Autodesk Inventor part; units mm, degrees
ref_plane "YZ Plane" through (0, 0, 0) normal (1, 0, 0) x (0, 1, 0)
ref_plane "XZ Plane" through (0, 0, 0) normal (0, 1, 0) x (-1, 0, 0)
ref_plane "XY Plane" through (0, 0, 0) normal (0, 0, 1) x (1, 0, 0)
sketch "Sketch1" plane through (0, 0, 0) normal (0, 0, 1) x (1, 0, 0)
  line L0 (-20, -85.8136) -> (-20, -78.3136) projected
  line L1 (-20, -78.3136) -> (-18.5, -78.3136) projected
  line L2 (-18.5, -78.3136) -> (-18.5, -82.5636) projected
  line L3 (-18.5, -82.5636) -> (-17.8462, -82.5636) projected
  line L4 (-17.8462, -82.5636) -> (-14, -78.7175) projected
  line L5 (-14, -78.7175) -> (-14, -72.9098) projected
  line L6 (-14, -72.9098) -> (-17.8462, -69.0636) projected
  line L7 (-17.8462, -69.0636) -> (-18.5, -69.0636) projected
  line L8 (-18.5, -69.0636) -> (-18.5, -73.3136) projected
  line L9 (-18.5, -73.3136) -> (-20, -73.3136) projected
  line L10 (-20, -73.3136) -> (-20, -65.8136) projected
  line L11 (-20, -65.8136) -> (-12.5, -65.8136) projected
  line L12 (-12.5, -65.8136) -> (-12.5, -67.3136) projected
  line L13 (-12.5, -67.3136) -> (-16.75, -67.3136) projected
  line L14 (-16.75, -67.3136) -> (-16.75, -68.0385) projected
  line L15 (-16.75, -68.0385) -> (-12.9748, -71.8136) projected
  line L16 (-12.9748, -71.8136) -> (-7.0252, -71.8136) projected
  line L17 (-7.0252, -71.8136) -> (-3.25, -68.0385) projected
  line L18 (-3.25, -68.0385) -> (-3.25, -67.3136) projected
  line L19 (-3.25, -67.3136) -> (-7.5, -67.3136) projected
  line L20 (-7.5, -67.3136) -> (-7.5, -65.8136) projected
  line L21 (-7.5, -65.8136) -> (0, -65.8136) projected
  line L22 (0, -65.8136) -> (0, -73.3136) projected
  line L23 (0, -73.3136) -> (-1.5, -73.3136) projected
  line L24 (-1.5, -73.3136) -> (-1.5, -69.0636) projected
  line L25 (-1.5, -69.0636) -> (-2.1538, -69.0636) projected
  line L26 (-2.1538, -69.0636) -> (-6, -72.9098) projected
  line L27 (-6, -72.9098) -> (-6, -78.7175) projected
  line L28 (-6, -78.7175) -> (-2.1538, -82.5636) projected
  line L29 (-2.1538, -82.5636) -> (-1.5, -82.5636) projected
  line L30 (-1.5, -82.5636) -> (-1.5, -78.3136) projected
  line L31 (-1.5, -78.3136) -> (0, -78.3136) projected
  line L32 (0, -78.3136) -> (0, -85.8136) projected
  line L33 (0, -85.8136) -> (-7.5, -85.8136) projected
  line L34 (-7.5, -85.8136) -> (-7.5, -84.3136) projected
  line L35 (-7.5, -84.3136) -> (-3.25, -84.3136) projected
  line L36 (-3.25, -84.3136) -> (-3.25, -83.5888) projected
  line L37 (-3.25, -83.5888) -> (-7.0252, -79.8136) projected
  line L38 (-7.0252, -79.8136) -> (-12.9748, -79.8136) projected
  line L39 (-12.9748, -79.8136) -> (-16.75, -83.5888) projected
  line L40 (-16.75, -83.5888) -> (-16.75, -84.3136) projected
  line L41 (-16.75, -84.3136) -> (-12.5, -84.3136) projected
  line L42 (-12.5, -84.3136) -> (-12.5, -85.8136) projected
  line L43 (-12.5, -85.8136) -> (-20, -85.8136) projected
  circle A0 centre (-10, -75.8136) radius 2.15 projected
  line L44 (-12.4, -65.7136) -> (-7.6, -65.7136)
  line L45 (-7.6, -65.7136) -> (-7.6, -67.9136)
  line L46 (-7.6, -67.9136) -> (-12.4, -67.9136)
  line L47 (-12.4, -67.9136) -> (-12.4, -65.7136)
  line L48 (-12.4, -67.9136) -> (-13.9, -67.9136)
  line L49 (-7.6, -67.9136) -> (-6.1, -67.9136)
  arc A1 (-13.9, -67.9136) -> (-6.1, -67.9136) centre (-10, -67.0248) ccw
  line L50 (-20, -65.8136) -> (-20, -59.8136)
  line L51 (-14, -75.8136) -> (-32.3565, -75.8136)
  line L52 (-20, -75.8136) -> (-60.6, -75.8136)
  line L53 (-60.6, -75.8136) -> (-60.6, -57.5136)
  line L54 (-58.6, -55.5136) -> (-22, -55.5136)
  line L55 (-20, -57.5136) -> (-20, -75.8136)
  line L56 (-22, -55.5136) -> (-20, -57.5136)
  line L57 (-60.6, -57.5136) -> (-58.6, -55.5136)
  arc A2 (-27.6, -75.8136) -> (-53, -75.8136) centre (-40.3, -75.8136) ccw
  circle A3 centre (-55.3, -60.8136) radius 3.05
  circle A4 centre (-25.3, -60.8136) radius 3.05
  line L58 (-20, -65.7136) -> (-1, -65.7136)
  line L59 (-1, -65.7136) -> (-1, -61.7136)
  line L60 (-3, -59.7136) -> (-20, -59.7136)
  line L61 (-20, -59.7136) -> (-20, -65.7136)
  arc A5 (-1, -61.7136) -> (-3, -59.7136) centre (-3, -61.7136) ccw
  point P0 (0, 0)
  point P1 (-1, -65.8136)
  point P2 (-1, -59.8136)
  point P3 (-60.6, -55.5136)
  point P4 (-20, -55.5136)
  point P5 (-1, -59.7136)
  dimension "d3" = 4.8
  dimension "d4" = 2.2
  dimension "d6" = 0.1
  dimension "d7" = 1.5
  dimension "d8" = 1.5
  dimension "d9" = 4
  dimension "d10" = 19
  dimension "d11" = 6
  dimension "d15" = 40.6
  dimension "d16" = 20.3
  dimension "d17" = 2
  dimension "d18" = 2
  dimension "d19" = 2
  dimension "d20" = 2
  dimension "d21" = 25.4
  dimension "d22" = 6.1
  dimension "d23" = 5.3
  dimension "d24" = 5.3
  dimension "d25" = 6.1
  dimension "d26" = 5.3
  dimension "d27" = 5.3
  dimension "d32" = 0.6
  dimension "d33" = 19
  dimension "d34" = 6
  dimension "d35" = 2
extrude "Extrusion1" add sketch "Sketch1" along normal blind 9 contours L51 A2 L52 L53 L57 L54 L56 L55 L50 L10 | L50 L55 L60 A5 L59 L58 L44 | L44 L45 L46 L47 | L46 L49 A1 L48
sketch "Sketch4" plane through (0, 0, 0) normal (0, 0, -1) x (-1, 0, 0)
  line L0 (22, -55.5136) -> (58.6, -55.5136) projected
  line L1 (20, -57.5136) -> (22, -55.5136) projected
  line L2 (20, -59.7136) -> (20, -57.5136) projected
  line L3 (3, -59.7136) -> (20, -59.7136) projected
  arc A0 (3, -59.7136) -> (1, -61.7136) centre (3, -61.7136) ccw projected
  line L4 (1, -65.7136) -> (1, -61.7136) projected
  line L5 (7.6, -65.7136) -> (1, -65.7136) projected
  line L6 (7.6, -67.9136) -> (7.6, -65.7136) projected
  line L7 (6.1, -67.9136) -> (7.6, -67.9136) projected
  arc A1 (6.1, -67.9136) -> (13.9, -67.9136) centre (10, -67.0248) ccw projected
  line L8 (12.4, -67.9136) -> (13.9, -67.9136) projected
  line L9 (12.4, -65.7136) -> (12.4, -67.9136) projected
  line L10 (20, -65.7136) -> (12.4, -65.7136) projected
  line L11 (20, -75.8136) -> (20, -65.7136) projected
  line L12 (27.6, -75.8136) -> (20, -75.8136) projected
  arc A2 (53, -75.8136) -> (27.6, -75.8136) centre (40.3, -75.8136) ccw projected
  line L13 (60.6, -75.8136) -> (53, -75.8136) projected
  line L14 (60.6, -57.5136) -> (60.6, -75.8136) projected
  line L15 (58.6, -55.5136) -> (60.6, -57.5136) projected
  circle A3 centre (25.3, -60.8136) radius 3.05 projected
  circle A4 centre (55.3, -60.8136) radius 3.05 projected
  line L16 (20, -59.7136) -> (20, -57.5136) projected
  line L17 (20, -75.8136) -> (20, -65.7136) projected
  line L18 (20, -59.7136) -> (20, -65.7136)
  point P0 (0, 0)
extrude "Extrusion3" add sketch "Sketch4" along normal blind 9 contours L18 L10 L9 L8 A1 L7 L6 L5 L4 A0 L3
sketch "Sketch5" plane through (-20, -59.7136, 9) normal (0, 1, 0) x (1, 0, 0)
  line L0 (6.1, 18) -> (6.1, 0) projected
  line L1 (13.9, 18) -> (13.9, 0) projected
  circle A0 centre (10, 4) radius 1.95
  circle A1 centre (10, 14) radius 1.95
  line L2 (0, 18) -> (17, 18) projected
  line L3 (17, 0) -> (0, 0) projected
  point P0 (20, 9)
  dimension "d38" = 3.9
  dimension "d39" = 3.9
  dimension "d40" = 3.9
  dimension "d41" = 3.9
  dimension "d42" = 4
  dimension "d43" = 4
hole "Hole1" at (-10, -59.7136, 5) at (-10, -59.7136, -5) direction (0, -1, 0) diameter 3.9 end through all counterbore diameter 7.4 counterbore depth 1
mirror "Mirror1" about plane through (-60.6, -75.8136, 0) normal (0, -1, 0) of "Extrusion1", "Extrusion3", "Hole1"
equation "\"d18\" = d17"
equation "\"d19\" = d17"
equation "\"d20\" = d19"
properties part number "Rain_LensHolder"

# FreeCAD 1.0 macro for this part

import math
import FreeCAD as App
import Part
import Sketcher

V = App.Vector
Q = App.Units.Quantity

doc = App.newDocument("Part")
body = doc.addObject("PartDesign::Body", "Body")

# Sketch on XY plane
sketch1 = body.newObject("Sketcher::SketchObject", "Sketch")
sketch1.AttachmentSupport = (doc.getObject("XY_Plane"), [""])
sketch1.MapMode = "FlatFace"
sketch1.addGeometry([
    Part.LineSegment(V(-27.6, -75.8, 0), V(-20, -75.8, 0)),  # 0
    Part.LineSegment(V(-20, -75.8, 0), V(-20, -65.7, 0)),  # 1
    Part.LineSegment(V(-20, -65.7, 0), V(-12.4, -65.7, 0)),  # 2
    Part.LineSegment(V(-12.4, -65.7, 0), V(-12.4, -67.9, 0)),  # 3
    Part.LineSegment(V(-12.4, -67.9, 0), V(-13.9, -67.9, 0)),  # 4
    Part.ArcOfCircle(Part.Circle(V(-10, -67, 0), V(0, 0, 1), 4), math.radians(-167), math.radians(-13)),  # 5
    Part.LineSegment(V(-6.1, -67.9, 0), V(-7.6, -67.9, 0)),  # 6
    Part.LineSegment(V(-7.6, -67.9, 0), V(-7.6, -65.7, 0)),  # 7
    Part.LineSegment(V(-7.6, -65.7, 0), V(-1, -65.7, 0)),  # 8
    Part.LineSegment(V(-1, -65.7, 0), V(-1, -61.7, 0)),  # 9
    Part.ArcOfCircle(Part.Circle(V(-3, -61.7, 0), V(0, 0, 1), 2), math.radians(0), math.radians(90)),  # 10
    Part.LineSegment(V(-3, -59.7, 0), V(-20, -59.7, 0)),  # 11
    Part.LineSegment(V(-20, -59.7, 0), V(-20, -57.5, 0)),  # 12
    Part.LineSegment(V(-20, -57.5, 0), V(-22, -55.5, 0)),  # 13
    Part.LineSegment(V(-22, -55.5, 0), V(-58.6, -55.5, 0)),  # 14
    Part.LineSegment(V(-58.6, -55.5, 0), V(-60.6, -57.5, 0)),  # 15
    Part.LineSegment(V(-60.6, -57.5, 0), V(-60.6, -75.8, 0)),  # 16
    Part.LineSegment(V(-60.6, -75.8, 0), V(-53, -75.8, 0)),  # 17
    Part.ArcOfCircle(Part.Circle(V(-40.3, -75.8, 0), V(0, 0, 1), 12.7), math.radians(0), math.radians(180)),  # 18
    Part.Circle(V(-55.3, -60.8, 0), V(0, 0, 1), 3),  # 19
    Part.Circle(V(-25.3, -60.8, 0), V(0, 0, 1), 3),  # 20
], False)
sketch1.addConstraint([
    Sketcher.Constraint("Coincident", 0, 2, 1, 1),
    Sketcher.Constraint("Coincident", 1, 2, 2, 1),
    Sketcher.Constraint("Coincident", 2, 2, 3, 1),
    Sketcher.Constraint("Coincident", 3, 2, 4, 1),
    Sketcher.Constraint("Coincident", 4, 2, 5, 1),
    Sketcher.Constraint("Coincident", 5, 2, 6, 1),
    Sketcher.Constraint("Coincident", 6, 2, 7, 1),
    Sketcher.Constraint("Coincident", 7, 2, 8, 1),
    Sketcher.Constraint("Coincident", 8, 2, 9, 1),
    Sketcher.Constraint("Tangent", 9, 2, 10, 1),
    Sketcher.Constraint("Tangent", 10, 2, 11, 1),
    Sketcher.Constraint("Coincident", 11, 2, 12, 1),
    Sketcher.Constraint("Coincident", 12, 2, 13, 1),
    Sketcher.Constraint("Coincident", 13, 2, 14, 1),
    Sketcher.Constraint("Coincident", 14, 2, 15, 1),
    Sketcher.Constraint("Coincident", 15, 2, 16, 1),
    Sketcher.Constraint("Coincident", 16, 2, 17, 1),
    Sketcher.Constraint("Coincident", 17, 2, 18, 2),
    Sketcher.Constraint("Coincident", 18, 1, 0, 1),
    Sketcher.Constraint("Horizontal", 0),
    Sketcher.Constraint("Vertical", 1),
    Sketcher.Constraint("Horizontal", 2),
    Sketcher.Constraint("Vertical", 3),
    Sketcher.Constraint("Horizontal", 4),
    Sketcher.Constraint("Horizontal", 6),
    Sketcher.Constraint("Vertical", 7),
    Sketcher.Constraint("Horizontal", 8),
    Sketcher.Constraint("Vertical", 9),
    Sketcher.Constraint("Horizontal", 11),
    Sketcher.Constraint("Vertical", 12),
    Sketcher.Constraint("Horizontal", 14),
    Sketcher.Constraint("Vertical", 16),
    Sketcher.Constraint("Horizontal", 17),
    Sketcher.Constraint("Equal", 19, 20),
    Sketcher.Constraint("Perpendicular", 13, 15),
    Sketcher.Constraint("Horizontal", 19, 3, 20, 3),
    Sketcher.Constraint("Horizontal", 18, 3, 0, 2),
    Sketcher.Constraint("Horizontal", 4, 2, 5, 2),
    Sketcher.Constraint("Horizontal", 2, 2, 7, 2),
    Sketcher.Constraint("Horizontal", 12, 2, 15, 2),
    Sketcher.Constraint("Horizontal", 0, 2, 16, 2),
    Sketcher.Constraint("Vertical", 1, 2, 11, 2),
    Sketcher.Constraint("Equal", 0, 2),
    Sketcher.Constraint("Equal", 4, 6),
    Sketcher.Constraint("Equal", 2, 17),
    Sketcher.Constraint("Equal", 7, 12),
    Sketcher.Constraint("Equal", 13, 15),
    Sketcher.Constraint("Radius", 5, Q("4 mm")),
    Sketcher.Constraint("Radius", 10, Q("2 mm")),
    Sketcher.Constraint("Diameter", 19, Q("6.1 mm")),
    Sketcher.Constraint("Radius", 18, Q("12.7 mm")),
    Sketcher.Constraint("DistanceY", 9, 1, 9, 2, Q("4 mm")),
    Sketcher.Constraint("DistanceX", 4, 2, 4, 1, Q("1.5 mm")),
    Sketcher.Constraint("DistanceY", 3, 2, 3, 1, Q("2.2 mm")),
    Sketcher.Constraint("DistanceX", 13, 2, 12, 2, Q("2 mm")),
    Sketcher.Constraint("DistanceX", 5, 2, -1, 1, Q("6.1 mm")),
    Sketcher.Constraint("DistanceX", 20, 3, 0, 2, Q("5.3 mm")),
    Sketcher.Constraint("DistanceX", 18, 3, 0, 2, Q("20.3 mm")),
    Sketcher.Constraint("DistanceX", 3, 2, 6, 2, Q("4.8 mm")),
    Sketcher.Constraint("DistanceY", 20, 3, 13, 2, Q("5.3 mm")),
    Sketcher.Constraint("DistanceY", 18, 3, 14, 2, Q("20.3 mm")),
    Sketcher.Constraint("DistanceX", 15, 2, 19, 3, Q("5.3 mm")),
    Sketcher.Constraint("DistanceX", 11, 2, 11, 1, Q("17 mm")),
    Sketcher.Constraint("DistanceY", 5, 3, -1, 1, Q("67.0248 mm")),
])
pad1 = body.newObject("PartDesign::Pad", "Pad")
pad1.Profile = sketch1
pad1.Length = 9

# Sketch on XY plane
sketch2 = body.newObject("Sketcher::SketchObject", "Sketch001")
sketch2.AttachmentSupport = (doc.getObject("XY_Plane"), [""])
sketch2.MapMode = "FlatFace"
sketch2.addGeometry([
    Part.LineSegment(V(-20, -65.7, 0), V(-20, -59.7, 0)),  # 0
    Part.LineSegment(V(-20, -59.7, 0), V(-3, -59.7, 0)),  # 1
    Part.ArcOfCircle(Part.Circle(V(-3, -61.7, 0), V(0, 0, 1), 2), math.radians(0), math.radians(90)),  # 2
    Part.LineSegment(V(-1, -61.7, 0), V(-1, -65.7, 0)),  # 3
    Part.LineSegment(V(-1, -65.7, 0), V(-7.6, -65.7, 0)),  # 4
    Part.LineSegment(V(-7.6, -65.7, 0), V(-7.6, -67.9, 0)),  # 5
    Part.LineSegment(V(-7.6, -67.9, 0), V(-6.1, -67.9, 0)),  # 6
    Part.ArcOfCircle(Part.Circle(V(-10, -67, 0), V(0, 0, 1), 4), math.radians(-167), math.radians(-13)),  # 7
    Part.LineSegment(V(-13.9, -67.9, 0), V(-12.4, -67.9, 0)),  # 8
    Part.LineSegment(V(-12.4, -67.9, 0), V(-12.4, -65.7, 0)),  # 9
    Part.LineSegment(V(-12.4, -65.7, 0), V(-20, -65.7, 0)),  # 10
], False)
sketch2.addConstraint([
    Sketcher.Constraint("Coincident", 0, 2, 1, 1),
    Sketcher.Constraint("Tangent", 1, 2, 2, 2),
    Sketcher.Constraint("Tangent", 2, 1, 3, 1),
    Sketcher.Constraint("Coincident", 3, 2, 4, 1),
    Sketcher.Constraint("Coincident", 4, 2, 5, 1),
    Sketcher.Constraint("Coincident", 5, 2, 6, 1),
    Sketcher.Constraint("Coincident", 6, 2, 7, 2),
    Sketcher.Constraint("Coincident", 7, 1, 8, 1),
    Sketcher.Constraint("Coincident", 8, 2, 9, 1),
    Sketcher.Constraint("Coincident", 9, 2, 10, 1),
    Sketcher.Constraint("Coincident", 10, 2, 0, 1),
    Sketcher.Constraint("Vertical", 0),
    Sketcher.Constraint("Horizontal", 1),
    Sketcher.Constraint("Vertical", 3),
    Sketcher.Constraint("Horizontal", 4),
    Sketcher.Constraint("Vertical", 5),
    Sketcher.Constraint("Horizontal", 6),
    Sketcher.Constraint("Horizontal", 8),
    Sketcher.Constraint("Vertical", 9),
    Sketcher.Constraint("Horizontal", 10),
    Sketcher.Constraint("Horizontal", 6, 2, 7, 1),
    Sketcher.Constraint("Horizontal", 4, 2, 9, 2),
    Sketcher.Constraint("Equal", 6, 8),
    Sketcher.Constraint("Radius", 2, Q("2 mm")),
    Sketcher.Constraint("Radius", 7, Q("4 mm")),
    Sketcher.Constraint("DistanceX", 1, 1, 1, 2, Q("17 mm")),
    Sketcher.Constraint("DistanceY", 0, 1, 0, 2, Q("6 mm")),
    Sketcher.Constraint("DistanceX", 4, 2, 4, 1, Q("6.6 mm")),
    Sketcher.Constraint("DistanceX", 6, 1, 6, 2, Q("1.5 mm")),
    Sketcher.Constraint("DistanceX", 10, 2, 10, 1, Q("7.6 mm")),
    Sketcher.Constraint("DistanceY", 5, 2, 5, 1, Q("2.2 mm")),
    Sketcher.Constraint("DistanceX", 2, 3, -1, 1, Q("3 mm")),
    Sketcher.Constraint("DistanceY", 2, 3, -1, 1, Q("61.7136 mm")),
])
pad2 = body.newObject("PartDesign::Pad", "Pad001")
pad2.Profile = sketch2
pad2.Length = 9
pad2.Reversed = True

# Sketch on XZ plane
sketch3 = body.newObject("Sketcher::SketchObject", "Sketch002")
sketch3.AttachmentSupport = (doc.getObject("XZ_Plane"), [""])
sketch3.MapMode = "FlatFace"
sketch3.AttachmentOffset = App.Placement(V(0, 0, 59.7136), App.Rotation())
sketch3.addGeometry([
    Part.Circle(V(-10, 5, 0), V(0, 0, 1), 1.9),
    Part.Circle(V(-10, -5, 0), V(0, 0, 1), 1.9),
], False)
sketch3.addConstraint([
    Sketcher.Constraint("Equal", 0, 1),
    Sketcher.Constraint("Symmetric", 0, 3, 1, 3, -1),
    Sketcher.Constraint("Diameter", 0, Q("3.9 mm")),
    Sketcher.Constraint("DistanceX", 0, 3, -1, 1, Q("10 mm")),
    Sketcher.Constraint("DistanceY", -1, 1, 0, 3, Q("5 mm")),
])
doc.recompute()
hole = body.newObject("PartDesign::Hole", "Hole")
hole.Profile = sketch3
hole.ThreadType = "None"
hole.Diameter = 3.9
hole.DepthType = "ThroughAll"
hole.HoleCutType = "Counterbore"
hole.HoleCutDiameter = 7.4
hole.HoleCutDepth = 1
hole.Reversed = True
doc.recompute()

datumplane = body.newObject("PartDesign::Plane", "DatumPlane")
datumplane.AttachmentSupport = (doc.getObject("XZ_Plane"), [""])
datumplane.MapMode = "FlatFace"
datumplane.AttachmentOffset = App.Placement(V(0, 0, 75.8136), App.Rotation())
mirrored = body.newObject("PartDesign::Mirrored", "Mirrored")
mirrored.Originals = [pad1, pad2, hole]
mirrored.MirrorPlane = (datumplane, [""])
body.Tip = mirrored

doc.recompute()
